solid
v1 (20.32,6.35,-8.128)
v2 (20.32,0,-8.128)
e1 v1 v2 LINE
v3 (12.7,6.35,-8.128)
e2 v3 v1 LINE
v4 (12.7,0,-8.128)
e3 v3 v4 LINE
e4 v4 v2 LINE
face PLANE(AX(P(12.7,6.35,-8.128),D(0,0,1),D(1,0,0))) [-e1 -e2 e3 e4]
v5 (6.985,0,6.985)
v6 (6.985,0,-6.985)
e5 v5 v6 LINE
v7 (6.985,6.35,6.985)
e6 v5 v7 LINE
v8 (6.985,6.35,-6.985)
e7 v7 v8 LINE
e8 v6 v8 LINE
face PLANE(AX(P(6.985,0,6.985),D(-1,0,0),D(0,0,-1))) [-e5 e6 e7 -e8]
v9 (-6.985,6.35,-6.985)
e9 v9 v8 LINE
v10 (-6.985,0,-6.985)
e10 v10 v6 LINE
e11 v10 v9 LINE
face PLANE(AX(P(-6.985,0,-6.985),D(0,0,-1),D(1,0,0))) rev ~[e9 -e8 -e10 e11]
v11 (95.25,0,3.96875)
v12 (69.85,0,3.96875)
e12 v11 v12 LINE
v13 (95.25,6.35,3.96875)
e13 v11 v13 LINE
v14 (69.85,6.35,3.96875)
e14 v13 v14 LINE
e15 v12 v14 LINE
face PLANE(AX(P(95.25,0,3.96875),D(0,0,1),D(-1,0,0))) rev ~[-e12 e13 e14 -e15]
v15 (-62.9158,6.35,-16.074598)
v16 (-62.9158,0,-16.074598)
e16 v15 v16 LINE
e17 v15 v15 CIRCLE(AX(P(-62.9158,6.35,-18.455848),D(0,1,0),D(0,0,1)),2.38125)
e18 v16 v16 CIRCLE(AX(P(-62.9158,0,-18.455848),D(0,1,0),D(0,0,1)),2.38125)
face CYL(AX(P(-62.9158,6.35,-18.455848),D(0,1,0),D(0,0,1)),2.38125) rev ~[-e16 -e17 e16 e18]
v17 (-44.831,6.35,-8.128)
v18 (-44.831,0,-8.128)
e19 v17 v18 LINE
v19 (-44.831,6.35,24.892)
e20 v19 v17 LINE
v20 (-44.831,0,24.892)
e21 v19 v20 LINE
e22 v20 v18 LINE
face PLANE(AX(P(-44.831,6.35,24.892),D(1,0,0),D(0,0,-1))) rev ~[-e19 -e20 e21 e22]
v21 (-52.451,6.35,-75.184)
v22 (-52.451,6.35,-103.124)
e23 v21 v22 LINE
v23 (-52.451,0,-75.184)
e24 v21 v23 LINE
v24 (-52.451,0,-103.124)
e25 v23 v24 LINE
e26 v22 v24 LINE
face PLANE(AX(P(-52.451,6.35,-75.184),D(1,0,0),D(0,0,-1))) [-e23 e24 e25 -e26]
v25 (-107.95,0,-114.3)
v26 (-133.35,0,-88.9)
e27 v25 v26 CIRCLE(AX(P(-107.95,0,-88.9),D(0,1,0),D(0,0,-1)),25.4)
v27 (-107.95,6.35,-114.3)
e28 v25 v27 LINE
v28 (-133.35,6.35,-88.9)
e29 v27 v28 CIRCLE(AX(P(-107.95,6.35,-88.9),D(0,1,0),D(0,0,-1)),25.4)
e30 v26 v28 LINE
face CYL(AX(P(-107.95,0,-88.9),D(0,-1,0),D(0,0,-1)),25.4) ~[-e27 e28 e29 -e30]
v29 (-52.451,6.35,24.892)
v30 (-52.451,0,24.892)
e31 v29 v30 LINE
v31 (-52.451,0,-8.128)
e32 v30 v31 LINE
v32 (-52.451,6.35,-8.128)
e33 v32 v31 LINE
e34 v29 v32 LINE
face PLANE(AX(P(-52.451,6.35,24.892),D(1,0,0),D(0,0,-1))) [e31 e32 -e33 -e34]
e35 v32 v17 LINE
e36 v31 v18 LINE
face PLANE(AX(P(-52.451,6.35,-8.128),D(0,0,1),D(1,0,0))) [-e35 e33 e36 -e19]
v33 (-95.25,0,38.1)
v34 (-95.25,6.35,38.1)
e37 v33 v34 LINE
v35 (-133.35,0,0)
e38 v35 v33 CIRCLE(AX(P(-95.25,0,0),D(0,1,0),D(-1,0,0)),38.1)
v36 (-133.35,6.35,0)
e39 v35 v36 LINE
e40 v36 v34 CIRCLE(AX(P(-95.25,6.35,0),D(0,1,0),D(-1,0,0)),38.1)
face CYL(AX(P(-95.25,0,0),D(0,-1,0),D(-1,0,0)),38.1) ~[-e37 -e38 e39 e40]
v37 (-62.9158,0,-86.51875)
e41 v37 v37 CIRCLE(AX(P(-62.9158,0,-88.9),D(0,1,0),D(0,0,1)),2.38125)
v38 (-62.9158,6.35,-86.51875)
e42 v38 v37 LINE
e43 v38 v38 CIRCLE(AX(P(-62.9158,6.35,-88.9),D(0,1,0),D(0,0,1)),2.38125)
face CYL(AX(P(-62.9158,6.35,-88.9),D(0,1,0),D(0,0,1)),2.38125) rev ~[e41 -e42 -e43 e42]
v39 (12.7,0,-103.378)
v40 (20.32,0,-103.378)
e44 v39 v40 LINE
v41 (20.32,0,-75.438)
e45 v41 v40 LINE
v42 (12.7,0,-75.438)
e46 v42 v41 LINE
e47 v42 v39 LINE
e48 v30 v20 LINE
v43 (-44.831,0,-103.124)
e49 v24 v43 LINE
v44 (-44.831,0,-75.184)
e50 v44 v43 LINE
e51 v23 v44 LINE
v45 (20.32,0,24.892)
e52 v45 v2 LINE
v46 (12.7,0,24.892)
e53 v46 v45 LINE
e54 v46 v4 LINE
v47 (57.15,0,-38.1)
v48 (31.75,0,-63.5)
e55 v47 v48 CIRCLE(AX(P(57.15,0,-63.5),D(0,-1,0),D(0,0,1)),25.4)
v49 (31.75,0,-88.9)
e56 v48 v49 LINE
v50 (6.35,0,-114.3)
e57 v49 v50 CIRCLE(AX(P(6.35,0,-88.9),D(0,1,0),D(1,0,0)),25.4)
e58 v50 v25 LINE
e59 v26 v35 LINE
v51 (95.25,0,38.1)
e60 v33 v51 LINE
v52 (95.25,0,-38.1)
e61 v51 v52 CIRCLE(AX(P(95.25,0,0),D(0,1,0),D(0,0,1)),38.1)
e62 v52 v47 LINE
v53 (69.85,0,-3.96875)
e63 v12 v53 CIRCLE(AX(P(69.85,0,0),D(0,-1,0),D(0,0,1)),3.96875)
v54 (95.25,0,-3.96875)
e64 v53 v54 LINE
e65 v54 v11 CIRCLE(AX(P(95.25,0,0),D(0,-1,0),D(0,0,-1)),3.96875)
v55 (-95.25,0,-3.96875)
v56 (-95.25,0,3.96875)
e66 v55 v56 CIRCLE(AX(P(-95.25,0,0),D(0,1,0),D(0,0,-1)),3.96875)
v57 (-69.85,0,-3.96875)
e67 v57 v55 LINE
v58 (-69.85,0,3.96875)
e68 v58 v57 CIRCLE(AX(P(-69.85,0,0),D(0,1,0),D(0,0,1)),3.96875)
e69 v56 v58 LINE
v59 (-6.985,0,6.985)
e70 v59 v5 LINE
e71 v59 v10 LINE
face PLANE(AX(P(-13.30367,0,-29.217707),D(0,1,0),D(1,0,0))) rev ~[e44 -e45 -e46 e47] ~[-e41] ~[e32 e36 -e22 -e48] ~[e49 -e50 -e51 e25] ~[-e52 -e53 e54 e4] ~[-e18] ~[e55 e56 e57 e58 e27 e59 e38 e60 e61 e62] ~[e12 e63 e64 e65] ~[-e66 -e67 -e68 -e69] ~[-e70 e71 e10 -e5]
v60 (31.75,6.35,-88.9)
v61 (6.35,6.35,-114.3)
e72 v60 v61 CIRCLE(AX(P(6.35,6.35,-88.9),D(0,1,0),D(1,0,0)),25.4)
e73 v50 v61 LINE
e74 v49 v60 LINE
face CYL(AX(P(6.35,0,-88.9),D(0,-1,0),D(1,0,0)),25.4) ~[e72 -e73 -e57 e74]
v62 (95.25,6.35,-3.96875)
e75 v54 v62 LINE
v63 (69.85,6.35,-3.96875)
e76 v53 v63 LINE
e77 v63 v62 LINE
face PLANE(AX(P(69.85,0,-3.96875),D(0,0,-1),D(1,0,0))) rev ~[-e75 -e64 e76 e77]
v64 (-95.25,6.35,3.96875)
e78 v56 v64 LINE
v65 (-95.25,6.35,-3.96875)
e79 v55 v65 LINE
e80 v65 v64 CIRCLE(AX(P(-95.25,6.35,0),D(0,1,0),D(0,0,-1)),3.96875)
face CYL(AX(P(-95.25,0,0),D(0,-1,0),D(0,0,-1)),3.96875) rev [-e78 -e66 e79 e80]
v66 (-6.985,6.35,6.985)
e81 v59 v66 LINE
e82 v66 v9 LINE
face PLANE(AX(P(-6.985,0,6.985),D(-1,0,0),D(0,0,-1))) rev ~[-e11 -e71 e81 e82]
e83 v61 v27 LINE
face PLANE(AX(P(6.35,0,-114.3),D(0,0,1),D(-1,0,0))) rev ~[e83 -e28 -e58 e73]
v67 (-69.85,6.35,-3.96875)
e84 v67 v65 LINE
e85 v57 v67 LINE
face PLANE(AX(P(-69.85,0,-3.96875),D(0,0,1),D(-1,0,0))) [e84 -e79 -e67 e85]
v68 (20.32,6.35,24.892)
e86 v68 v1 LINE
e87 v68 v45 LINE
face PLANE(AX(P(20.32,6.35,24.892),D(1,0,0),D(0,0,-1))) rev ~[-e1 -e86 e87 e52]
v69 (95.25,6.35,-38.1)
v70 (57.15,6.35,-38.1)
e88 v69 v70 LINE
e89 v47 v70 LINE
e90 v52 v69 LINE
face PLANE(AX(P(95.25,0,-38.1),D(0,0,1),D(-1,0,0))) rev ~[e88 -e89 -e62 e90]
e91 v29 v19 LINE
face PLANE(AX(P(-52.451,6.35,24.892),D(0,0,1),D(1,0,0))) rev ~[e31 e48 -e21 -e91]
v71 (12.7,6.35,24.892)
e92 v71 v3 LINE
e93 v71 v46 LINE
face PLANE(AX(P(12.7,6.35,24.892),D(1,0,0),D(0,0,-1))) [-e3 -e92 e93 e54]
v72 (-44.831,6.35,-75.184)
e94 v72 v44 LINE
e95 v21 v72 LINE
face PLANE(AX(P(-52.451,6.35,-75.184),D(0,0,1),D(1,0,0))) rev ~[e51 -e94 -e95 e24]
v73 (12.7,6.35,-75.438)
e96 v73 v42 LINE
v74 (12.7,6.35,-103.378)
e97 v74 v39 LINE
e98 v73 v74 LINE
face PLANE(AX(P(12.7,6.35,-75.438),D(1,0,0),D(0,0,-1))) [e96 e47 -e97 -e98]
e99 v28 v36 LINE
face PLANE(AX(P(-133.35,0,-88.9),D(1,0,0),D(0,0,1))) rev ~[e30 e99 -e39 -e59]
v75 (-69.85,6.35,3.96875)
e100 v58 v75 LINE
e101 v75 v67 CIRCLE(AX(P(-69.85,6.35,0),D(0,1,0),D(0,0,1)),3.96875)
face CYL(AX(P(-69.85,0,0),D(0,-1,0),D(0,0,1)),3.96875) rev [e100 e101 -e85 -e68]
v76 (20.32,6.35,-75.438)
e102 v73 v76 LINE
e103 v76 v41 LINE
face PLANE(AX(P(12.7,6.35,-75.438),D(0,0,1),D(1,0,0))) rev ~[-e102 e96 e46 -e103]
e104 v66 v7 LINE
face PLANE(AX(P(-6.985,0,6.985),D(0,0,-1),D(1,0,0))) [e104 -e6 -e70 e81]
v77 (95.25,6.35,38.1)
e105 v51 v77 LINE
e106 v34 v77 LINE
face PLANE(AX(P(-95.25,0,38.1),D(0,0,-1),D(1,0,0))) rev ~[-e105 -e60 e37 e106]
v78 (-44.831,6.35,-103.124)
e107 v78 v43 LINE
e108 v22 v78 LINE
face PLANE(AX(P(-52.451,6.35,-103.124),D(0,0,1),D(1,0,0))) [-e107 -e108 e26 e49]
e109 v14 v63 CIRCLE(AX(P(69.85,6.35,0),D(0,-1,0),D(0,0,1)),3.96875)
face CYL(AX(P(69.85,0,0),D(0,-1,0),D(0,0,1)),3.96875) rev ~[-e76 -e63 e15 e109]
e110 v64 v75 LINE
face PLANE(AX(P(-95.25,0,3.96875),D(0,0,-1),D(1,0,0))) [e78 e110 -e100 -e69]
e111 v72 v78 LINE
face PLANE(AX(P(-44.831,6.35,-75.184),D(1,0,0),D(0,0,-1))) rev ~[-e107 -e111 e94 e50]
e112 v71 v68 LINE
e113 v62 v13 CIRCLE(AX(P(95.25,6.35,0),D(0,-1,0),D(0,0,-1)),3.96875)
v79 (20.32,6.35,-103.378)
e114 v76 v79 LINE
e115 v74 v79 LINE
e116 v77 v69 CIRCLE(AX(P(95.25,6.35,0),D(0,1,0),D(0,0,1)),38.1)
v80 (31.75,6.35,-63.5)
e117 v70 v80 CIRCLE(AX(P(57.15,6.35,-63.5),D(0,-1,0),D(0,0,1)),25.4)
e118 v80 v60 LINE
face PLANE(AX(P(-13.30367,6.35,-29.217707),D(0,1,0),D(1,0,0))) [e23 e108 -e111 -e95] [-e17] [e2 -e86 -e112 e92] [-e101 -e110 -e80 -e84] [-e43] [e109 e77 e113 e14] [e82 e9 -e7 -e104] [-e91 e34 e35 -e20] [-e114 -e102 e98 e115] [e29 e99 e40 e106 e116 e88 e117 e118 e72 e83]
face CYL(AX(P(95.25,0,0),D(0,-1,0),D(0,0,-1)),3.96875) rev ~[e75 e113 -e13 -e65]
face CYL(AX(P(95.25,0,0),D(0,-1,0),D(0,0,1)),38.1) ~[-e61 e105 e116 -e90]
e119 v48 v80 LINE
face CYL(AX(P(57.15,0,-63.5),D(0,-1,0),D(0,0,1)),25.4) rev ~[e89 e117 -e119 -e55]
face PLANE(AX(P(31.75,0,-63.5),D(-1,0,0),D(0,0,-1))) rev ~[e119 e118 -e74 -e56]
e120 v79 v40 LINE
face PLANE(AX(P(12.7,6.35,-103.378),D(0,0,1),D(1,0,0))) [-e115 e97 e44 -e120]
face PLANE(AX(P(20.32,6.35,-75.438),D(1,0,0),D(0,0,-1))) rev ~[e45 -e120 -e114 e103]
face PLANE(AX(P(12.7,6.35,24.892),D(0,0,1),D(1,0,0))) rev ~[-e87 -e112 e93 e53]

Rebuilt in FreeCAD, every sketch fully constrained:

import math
import FreeCAD as App
import Part
import Sketcher

V = App.Vector
Q = App.Units.Quantity


def add_polygon(sketch, points):
    """Adds a closed chain of lines whose ends are joined by coincident constraints."""
    first, n = sketch.GeometryCount, len(points)
    for a, b in zip(points, points[1:] + points[:1]):
        sketch.addGeometry(Part.LineSegment(App.Vector(*a, 0), App.Vector(*b, 0)), False)
    for i in range(n):
        sketch.addConstraint(Sketcher.Constraint("Coincident", first + i, 2, first + (i + 1) % n, 1))

doc = App.newDocument("Part")
params = doc.addObject("Spreadsheet::Sheet", "Params")
for row, (alias, value) in enumerate([
    ("sketch1_radius", "1 in"),
    ("sketch1_radius2", "1.5 in"),
    ("sketch1_width", "1 in"),
    ("sketch1_width2", "7.5 in"),
    ("sketch1_width3", "1.5 in"),
    ("pad1_length", "0.25 in"),
    ("sketch2_width", "0.3 in"),
    ("sketch2_height", "1.3 in"),
    ("sketch2_height2", "1.1 in"),
    ("sketch3_diameter", "0.1875 in"),
], start=1):
    params.set(f"A{row}", alias)
    params.set(f"B{row}", "=" + value)
    params.setAlias(f"B{row}", alias)

body = doc.addObject("PartDesign::Body", "Body")

# Sketch on XZ plane
sketch1 = body.newObject("Sketcher::SketchObject", "Sketch")
sketch1.AttachmentSupport = (doc.getObject("XZ_Plane"), [""])
sketch1.MapMode = "FlatFace"
sketch1.addGeometry(Part.LineSegment(V(-95.25, 38.1, 0), V(95.25, 38.1, 0)), False)  # 0
sketch1.addGeometry(Part.ArcOfCircle(Part.Circle(V(95.25, 0, 0), V(0, 0, 1), 38.1), math.radians(-90), math.radians(90)), False)  # 1
sketch1.addGeometry(Part.LineSegment(V(95.25, -38.1, 0), V(57.15, -38.1, 0)), False)  # 2
sketch1.addGeometry(Part.ArcOfCircle(Part.Circle(V(57.15, -63.5, 0), V(0, 0, 1), 25.4), math.radians(90), math.radians(180)), False)  # 3
sketch1.addGeometry(Part.LineSegment(V(31.75, -63.5, 0), V(31.75, -88.9, 0)), False)  # 4
sketch1.addGeometry(Part.ArcOfCircle(Part.Circle(V(6.35, -88.9, 0), V(0, 0, 1), 25.4), math.radians(-90), math.radians(0)), False)  # 5
sketch1.addGeometry(Part.LineSegment(V(6.35, -114.3, 0), V(-107.95, -114.3, 0)), False)  # 6
sketch1.addGeometry(Part.ArcOfCircle(Part.Circle(V(-107.95, -88.9, 0), V(0, 0, 1), 25.4), math.radians(180), math.radians(270)), False)  # 7
sketch1.addGeometry(Part.LineSegment(V(-133.35, -88.9, 0), V(-133.35, 0, 0)), False)  # 8
sketch1.addGeometry(Part.ArcOfCircle(Part.Circle(V(-95.25, 0, 0), V(0, 0, 1), 38.1), math.radians(90), math.radians(180)), False)  # 9
sketch1.addGeometry(Part.LineSegment(V(-69.85, 3.96875, 0), V(-95.25, 3.96875, 0)), False)  # 10
sketch1.addGeometry(Part.ArcOfCircle(Part.Circle(V(-95.25, 0, 0), V(0, 0, 1), 3.96875), math.radians(90), math.radians(270)), False)  # 11
sketch1.addGeometry(Part.LineSegment(V(-95.25, -3.96875, 0), V(-69.85, -3.96875, 0)), False)  # 12
sketch1.addGeometry(Part.ArcOfCircle(Part.Circle(V(-69.85, 0, 0), V(0, 0, 1), 3.96875), math.radians(-90), math.radians(90)), False)  # 13
add_polygon(sketch1, [(6.985, 6.985), (-6.985, 6.985), (-6.985, -6.985), (6.985, -6.985)])  # lines 14-17
sketch1.addGeometry(Part.ArcOfCircle(Part.Circle(V(95.25, 0, 0), V(0, 0, 1), 3.96875), math.radians(-90), math.radians(90)), False)  # 18
sketch1.addGeometry(Part.LineSegment(V(95.25, 3.96875, 0), V(69.85, 3.96875, 0)), False)  # 19
sketch1.addGeometry(Part.ArcOfCircle(Part.Circle(V(69.85, 0, 0), V(0, 0, 1), 3.96875), math.radians(90), math.radians(270)), False)  # 20
sketch1.addGeometry(Part.LineSegment(V(69.85, -3.96875, 0), V(95.25, -3.96875, 0)), False)  # 21
sketch1.addConstraint(Sketcher.Constraint("Tangent", 0, 2, 1, 2))
sketch1.addConstraint(Sketcher.Constraint("Tangent", 1, 1, 2, 1))
sketch1.addConstraint(Sketcher.Constraint("Tangent", 2, 2, 3, 1))
sketch1.addConstraint(Sketcher.Constraint("Tangent", 3, 2, 4, 1))
sketch1.addConstraint(Sketcher.Constraint("Tangent", 4, 2, 5, 2))
sketch1.addConstraint(Sketcher.Constraint("Tangent", 5, 1, 6, 1))
sketch1.addConstraint(Sketcher.Constraint("Tangent", 6, 2, 7, 2))
sketch1.addConstraint(Sketcher.Constraint("Tangent", 7, 1, 8, 1))
sketch1.addConstraint(Sketcher.Constraint("Tangent", 8, 2, 9, 2))
sketch1.addConstraint(Sketcher.Constraint("Tangent", 9, 1, 0, 1))
sketch1.addConstraint(Sketcher.Constraint("Tangent", 10, 2, 11, 1))
sketch1.addConstraint(Sketcher.Constraint("Tangent", 11, 2, 12, 1))
sketch1.addConstraint(Sketcher.Constraint("Tangent", 12, 2, 13, 1))
sketch1.addConstraint(Sketcher.Constraint("Tangent", 13, 2, 10, 1))
sketch1.addConstraint(Sketcher.Constraint("Tangent", 18, 2, 19, 1))
sketch1.addConstraint(Sketcher.Constraint("Tangent", 19, 2, 20, 1))
sketch1.addConstraint(Sketcher.Constraint("Tangent", 20, 2, 21, 1))
sketch1.addConstraint(Sketcher.Constraint("Tangent", 21, 2, 18, 1))
sketch1.addConstraint(Sketcher.Constraint("Horizontal", 0))
sketch1.addConstraint(Sketcher.Constraint("Horizontal", 2))
sketch1.addConstraint(Sketcher.Constraint("Vertical", 4))
sketch1.addConstraint(Sketcher.Constraint("Horizontal", 6))
sketch1.addConstraint(Sketcher.Constraint("Vertical", 8))
sketch1.addConstraint(Sketcher.Constraint("Horizontal", 10))
sketch1.addConstraint(Sketcher.Constraint("Horizontal", 12))
sketch1.addConstraint(Sketcher.Constraint("Horizontal", 14))
sketch1.addConstraint(Sketcher.Constraint("Vertical", 15))
sketch1.addConstraint(Sketcher.Constraint("Horizontal", 16))
sketch1.addConstraint(Sketcher.Constraint("Vertical", 17))
sketch1.addConstraint(Sketcher.Constraint("Horizontal", 19))
sketch1.addConstraint(Sketcher.Constraint("Horizontal", 21))
sketch1.addConstraint(Sketcher.Constraint("Coincident", 11, 3, 9, 3))
sketch1.addConstraint(Sketcher.Constraint("Coincident", 18, 3, 1, 3))
sketch1.addConstraint(Sketcher.Constraint("Equal", 3, 5))
sketch1.addConstraint(Sketcher.Constraint("Equal", 5, 7))
sketch1.addConstraint(Sketcher.Constraint("Equal", 1, 9))
sketch1.addConstraint(Sketcher.Constraint("Equal", 13, 18))
sketch1.addConstraint(Sketcher.Constraint("Symmetric", 1, 3, 9, 3, -1, 1))
sketch1.addConstraint(Sketcher.Constraint("Symmetric", 14, 2, 16, 2, -1, 1))
sketch1.addConstraint(Sketcher.Constraint("Equal", 12, 19))
sketch1.addConstraint(Sketcher.Constraint("Equal", 21, 4))
sketch1.addConstraint(Sketcher.Constraint("Equal", 16, 15))
sketch1.addConstraint(Sketcher.Constraint("Radius", 3, Q("1 in")))
sketch1.addConstraint(Sketcher.Constraint("Radius", 1, Q("1.5 in")))
sketch1.addConstraint(Sketcher.Constraint("DistanceX", 10, 2, 10, 1, Q("1 in")))
sketch1.addConstraint(Sketcher.Constraint("DistanceX", 0, 1, 0, 2, Q("7.5 in")))
sketch1.addConstraint(Sketcher.Constraint("DistanceX", 2, 2, 2, 1, Q("1.5 in")))
sketch1.addConstraint(Sketcher.Constraint("Radius", 11, Q("0.15625 in")))
sketch1.addConstraint(Sketcher.Constraint("DistanceX", 14, 2, 14, 1, Q("0.55 in")))
sketch1.setExpression("Constraints[46]", "Params.sketch1_radius")
sketch1.setExpression("Constraints[47]", "Params.sketch1_radius2")
sketch1.setExpression("Constraints[48]", "Params.sketch1_width")
sketch1.setExpression("Constraints[49]", "Params.sketch1_width2")
sketch1.setExpression("Constraints[50]", "Params.sketch1_width3")
pad1 = body.newObject("PartDesign::Pad", "Pad")
pad1.Profile = sketch1
pad1.setExpression("Length", "Params.pad1_length")
pad1.Reversed = True

# Sketch on XZ plane
sketch2 = body.newObject("Sketcher::SketchObject", "Sketch001")
sketch2.AttachmentSupport = (doc.getObject("XZ_Plane"), [""])
sketch2.MapMode = "FlatFace"
sketch2.AttachmentOffset = App.Placement(V(0, 0, -0.25 * 25.4), App.Rotation())
add_polygon(sketch2, [(12.7, -8.128), (12.7, 24.892), (20.32, 24.892), (20.32, -8.128)])  # lines 0-3
add_polygon(sketch2, [(-52.451, -8.128), (-52.451, 24.892), (-44.831, 24.892), (-44.831, -8.128)])  # lines 4-7
add_polygon(sketch2, [(12.7, -103.378), (12.7, -75.438), (20.32, -75.438), (20.32, -103.378)])  # lines 8-11
add_polygon(sketch2, [(-52.451, -103.124), (-52.451, -75.184), (-44.831, -75.184), (-44.831, -103.124)])  # lines 12-15
sketch2.addConstraint(Sketcher.Constraint("Vertical", 0))
sketch2.addConstraint(Sketcher.Constraint("Horizontal", 1))
sketch2.addConstraint(Sketcher.Constraint("Vertical", 2))
sketch2.addConstraint(Sketcher.Constraint("Horizontal", 3))
sketch2.addConstraint(Sketcher.Constraint("Vertical", 4))
sketch2.addConstraint(Sketcher.Constraint("Horizontal", 5))
sketch2.addConstraint(Sketcher.Constraint("Vertical", 6))
sketch2.addConstraint(Sketcher.Constraint("Horizontal", 7))
sketch2.addConstraint(Sketcher.Constraint("Vertical", 8))
sketch2.addConstraint(Sketcher.Constraint("Horizontal", 9))
sketch2.addConstraint(Sketcher.Constraint("Vertical", 10))
sketch2.addConstraint(Sketcher.Constraint("Horizontal", 11))
sketch2.addConstraint(Sketcher.Constraint("Vertical", 12))
sketch2.addConstraint(Sketcher.Constraint("Horizontal", 13))
sketch2.addConstraint(Sketcher.Constraint("Vertical", 14))
sketch2.addConstraint(Sketcher.Constraint("Horizontal", 15))
sketch2.addConstraint(Sketcher.Constraint("Horizontal", 1, 2, 4, 2))
sketch2.addConstraint(Sketcher.Constraint("Horizontal", 3, 2, 6, 2))
sketch2.addConstraint(Sketcher.Constraint("Vertical", 3, 2, 8, 2))
sketch2.addConstraint(Sketcher.Constraint("Vertical", 2, 2, 9, 2))
sketch2.addConstraint(Sketcher.Constraint("Vertical", 7, 2, 12, 2))
sketch2.addConstraint(Sketcher.Constraint("Vertical", 6, 2, 13, 2))
sketch2.addConstraint(Sketcher.Constraint("Equal", 3, 5))
sketch2.addConstraint(Sketcher.Constraint("Equal", 10, 12))
sketch2.addConstraint(Sketcher.Constraint("DistanceX", 1, 1, 1, 2, Q("0.3 in")))
sketch2.addConstraint(Sketcher.Constraint("DistanceY", 0, 1, 0, 2, Q("1.3 in")))
sketch2.addConstraint(Sketcher.Constraint("DistanceY", 8, 1, 8, 2, Q("1.1 in")))
sketch2.addConstraint(Sketcher.Constraint("DistanceX", -1, 1, 0, 2, Q("0.5 in")))
sketch2.addConstraint(Sketcher.Constraint("DistanceY", -1, 1, 0, 2, Q("0.98 in")))
sketch2.addConstraint(Sketcher.Constraint("DistanceY", 8, 2, -1, 1, Q("2.97 in")))
sketch2.addConstraint(Sketcher.Constraint("DistanceY", 12, 2, -1, 1, Q("2.96 in")))
sketch2.addConstraint(Sketcher.Constraint("DistanceX", 4, 2, -1, 1, Q("2.065 in")))
sketch2.setExpression("Constraints[40]", "Params.sketch2_width")
sketch2.setExpression("Constraints[41]", "Params.sketch2_height")
sketch2.setExpression("Constraints[42]", "Params.sketch2_height2")
pocket1 = body.newObject("PartDesign::Pocket", "Pocket")
pocket1.Profile = sketch2
pocket1.Type = "ThroughAll"
pocket1.Reversed = True

# Sketch on XZ plane
sketch3 = body.newObject("Sketcher::SketchObject", "Sketch002")
sketch3.AttachmentSupport = (doc.getObject("XZ_Plane"), [""])
sketch3.MapMode = "FlatFace"
sketch3.AttachmentOffset = App.Placement(V(0, 0, -0.25 * 25.4), App.Rotation())
sketch3.addGeometry(Part.Circle(V(-62.9158, -88.9, 0), V(0, 0, 1), 2.38125), False)
sketch3.addGeometry(Part.Circle(V(-62.9158, -18.455848, 0), V(0, 0, 1), 2.38125), False)
sketch3.addConstraint(Sketcher.Constraint("Equal", 0, 1))
sketch3.addConstraint(Sketcher.Constraint("Vertical", 0, 3, 1, 3))
sketch3.addConstraint(Sketcher.Constraint("Diameter", 0, Q("0.1875 in")))
sketch3.addConstraint(Sketcher.Constraint("DistanceY", 0, 3, -1, 1, Q("3.5 in")))
sketch3.addConstraint(Sketcher.Constraint("DistanceX", 0, 3, -1, 1, Q("2.477 in")))
sketch3.addConstraint(Sketcher.Constraint("DistanceY", 1, 3, -1, 1, 18.455848))
sketch3.setExpression("Constraints[2]", "Params.sketch3_diameter")
pocket2 = body.newObject("PartDesign::Pocket", "Pocket001")
pocket2.Profile = sketch3
pocket2.Type = "ThroughAll"
pocket2.Reversed = True

doc.recompute()
